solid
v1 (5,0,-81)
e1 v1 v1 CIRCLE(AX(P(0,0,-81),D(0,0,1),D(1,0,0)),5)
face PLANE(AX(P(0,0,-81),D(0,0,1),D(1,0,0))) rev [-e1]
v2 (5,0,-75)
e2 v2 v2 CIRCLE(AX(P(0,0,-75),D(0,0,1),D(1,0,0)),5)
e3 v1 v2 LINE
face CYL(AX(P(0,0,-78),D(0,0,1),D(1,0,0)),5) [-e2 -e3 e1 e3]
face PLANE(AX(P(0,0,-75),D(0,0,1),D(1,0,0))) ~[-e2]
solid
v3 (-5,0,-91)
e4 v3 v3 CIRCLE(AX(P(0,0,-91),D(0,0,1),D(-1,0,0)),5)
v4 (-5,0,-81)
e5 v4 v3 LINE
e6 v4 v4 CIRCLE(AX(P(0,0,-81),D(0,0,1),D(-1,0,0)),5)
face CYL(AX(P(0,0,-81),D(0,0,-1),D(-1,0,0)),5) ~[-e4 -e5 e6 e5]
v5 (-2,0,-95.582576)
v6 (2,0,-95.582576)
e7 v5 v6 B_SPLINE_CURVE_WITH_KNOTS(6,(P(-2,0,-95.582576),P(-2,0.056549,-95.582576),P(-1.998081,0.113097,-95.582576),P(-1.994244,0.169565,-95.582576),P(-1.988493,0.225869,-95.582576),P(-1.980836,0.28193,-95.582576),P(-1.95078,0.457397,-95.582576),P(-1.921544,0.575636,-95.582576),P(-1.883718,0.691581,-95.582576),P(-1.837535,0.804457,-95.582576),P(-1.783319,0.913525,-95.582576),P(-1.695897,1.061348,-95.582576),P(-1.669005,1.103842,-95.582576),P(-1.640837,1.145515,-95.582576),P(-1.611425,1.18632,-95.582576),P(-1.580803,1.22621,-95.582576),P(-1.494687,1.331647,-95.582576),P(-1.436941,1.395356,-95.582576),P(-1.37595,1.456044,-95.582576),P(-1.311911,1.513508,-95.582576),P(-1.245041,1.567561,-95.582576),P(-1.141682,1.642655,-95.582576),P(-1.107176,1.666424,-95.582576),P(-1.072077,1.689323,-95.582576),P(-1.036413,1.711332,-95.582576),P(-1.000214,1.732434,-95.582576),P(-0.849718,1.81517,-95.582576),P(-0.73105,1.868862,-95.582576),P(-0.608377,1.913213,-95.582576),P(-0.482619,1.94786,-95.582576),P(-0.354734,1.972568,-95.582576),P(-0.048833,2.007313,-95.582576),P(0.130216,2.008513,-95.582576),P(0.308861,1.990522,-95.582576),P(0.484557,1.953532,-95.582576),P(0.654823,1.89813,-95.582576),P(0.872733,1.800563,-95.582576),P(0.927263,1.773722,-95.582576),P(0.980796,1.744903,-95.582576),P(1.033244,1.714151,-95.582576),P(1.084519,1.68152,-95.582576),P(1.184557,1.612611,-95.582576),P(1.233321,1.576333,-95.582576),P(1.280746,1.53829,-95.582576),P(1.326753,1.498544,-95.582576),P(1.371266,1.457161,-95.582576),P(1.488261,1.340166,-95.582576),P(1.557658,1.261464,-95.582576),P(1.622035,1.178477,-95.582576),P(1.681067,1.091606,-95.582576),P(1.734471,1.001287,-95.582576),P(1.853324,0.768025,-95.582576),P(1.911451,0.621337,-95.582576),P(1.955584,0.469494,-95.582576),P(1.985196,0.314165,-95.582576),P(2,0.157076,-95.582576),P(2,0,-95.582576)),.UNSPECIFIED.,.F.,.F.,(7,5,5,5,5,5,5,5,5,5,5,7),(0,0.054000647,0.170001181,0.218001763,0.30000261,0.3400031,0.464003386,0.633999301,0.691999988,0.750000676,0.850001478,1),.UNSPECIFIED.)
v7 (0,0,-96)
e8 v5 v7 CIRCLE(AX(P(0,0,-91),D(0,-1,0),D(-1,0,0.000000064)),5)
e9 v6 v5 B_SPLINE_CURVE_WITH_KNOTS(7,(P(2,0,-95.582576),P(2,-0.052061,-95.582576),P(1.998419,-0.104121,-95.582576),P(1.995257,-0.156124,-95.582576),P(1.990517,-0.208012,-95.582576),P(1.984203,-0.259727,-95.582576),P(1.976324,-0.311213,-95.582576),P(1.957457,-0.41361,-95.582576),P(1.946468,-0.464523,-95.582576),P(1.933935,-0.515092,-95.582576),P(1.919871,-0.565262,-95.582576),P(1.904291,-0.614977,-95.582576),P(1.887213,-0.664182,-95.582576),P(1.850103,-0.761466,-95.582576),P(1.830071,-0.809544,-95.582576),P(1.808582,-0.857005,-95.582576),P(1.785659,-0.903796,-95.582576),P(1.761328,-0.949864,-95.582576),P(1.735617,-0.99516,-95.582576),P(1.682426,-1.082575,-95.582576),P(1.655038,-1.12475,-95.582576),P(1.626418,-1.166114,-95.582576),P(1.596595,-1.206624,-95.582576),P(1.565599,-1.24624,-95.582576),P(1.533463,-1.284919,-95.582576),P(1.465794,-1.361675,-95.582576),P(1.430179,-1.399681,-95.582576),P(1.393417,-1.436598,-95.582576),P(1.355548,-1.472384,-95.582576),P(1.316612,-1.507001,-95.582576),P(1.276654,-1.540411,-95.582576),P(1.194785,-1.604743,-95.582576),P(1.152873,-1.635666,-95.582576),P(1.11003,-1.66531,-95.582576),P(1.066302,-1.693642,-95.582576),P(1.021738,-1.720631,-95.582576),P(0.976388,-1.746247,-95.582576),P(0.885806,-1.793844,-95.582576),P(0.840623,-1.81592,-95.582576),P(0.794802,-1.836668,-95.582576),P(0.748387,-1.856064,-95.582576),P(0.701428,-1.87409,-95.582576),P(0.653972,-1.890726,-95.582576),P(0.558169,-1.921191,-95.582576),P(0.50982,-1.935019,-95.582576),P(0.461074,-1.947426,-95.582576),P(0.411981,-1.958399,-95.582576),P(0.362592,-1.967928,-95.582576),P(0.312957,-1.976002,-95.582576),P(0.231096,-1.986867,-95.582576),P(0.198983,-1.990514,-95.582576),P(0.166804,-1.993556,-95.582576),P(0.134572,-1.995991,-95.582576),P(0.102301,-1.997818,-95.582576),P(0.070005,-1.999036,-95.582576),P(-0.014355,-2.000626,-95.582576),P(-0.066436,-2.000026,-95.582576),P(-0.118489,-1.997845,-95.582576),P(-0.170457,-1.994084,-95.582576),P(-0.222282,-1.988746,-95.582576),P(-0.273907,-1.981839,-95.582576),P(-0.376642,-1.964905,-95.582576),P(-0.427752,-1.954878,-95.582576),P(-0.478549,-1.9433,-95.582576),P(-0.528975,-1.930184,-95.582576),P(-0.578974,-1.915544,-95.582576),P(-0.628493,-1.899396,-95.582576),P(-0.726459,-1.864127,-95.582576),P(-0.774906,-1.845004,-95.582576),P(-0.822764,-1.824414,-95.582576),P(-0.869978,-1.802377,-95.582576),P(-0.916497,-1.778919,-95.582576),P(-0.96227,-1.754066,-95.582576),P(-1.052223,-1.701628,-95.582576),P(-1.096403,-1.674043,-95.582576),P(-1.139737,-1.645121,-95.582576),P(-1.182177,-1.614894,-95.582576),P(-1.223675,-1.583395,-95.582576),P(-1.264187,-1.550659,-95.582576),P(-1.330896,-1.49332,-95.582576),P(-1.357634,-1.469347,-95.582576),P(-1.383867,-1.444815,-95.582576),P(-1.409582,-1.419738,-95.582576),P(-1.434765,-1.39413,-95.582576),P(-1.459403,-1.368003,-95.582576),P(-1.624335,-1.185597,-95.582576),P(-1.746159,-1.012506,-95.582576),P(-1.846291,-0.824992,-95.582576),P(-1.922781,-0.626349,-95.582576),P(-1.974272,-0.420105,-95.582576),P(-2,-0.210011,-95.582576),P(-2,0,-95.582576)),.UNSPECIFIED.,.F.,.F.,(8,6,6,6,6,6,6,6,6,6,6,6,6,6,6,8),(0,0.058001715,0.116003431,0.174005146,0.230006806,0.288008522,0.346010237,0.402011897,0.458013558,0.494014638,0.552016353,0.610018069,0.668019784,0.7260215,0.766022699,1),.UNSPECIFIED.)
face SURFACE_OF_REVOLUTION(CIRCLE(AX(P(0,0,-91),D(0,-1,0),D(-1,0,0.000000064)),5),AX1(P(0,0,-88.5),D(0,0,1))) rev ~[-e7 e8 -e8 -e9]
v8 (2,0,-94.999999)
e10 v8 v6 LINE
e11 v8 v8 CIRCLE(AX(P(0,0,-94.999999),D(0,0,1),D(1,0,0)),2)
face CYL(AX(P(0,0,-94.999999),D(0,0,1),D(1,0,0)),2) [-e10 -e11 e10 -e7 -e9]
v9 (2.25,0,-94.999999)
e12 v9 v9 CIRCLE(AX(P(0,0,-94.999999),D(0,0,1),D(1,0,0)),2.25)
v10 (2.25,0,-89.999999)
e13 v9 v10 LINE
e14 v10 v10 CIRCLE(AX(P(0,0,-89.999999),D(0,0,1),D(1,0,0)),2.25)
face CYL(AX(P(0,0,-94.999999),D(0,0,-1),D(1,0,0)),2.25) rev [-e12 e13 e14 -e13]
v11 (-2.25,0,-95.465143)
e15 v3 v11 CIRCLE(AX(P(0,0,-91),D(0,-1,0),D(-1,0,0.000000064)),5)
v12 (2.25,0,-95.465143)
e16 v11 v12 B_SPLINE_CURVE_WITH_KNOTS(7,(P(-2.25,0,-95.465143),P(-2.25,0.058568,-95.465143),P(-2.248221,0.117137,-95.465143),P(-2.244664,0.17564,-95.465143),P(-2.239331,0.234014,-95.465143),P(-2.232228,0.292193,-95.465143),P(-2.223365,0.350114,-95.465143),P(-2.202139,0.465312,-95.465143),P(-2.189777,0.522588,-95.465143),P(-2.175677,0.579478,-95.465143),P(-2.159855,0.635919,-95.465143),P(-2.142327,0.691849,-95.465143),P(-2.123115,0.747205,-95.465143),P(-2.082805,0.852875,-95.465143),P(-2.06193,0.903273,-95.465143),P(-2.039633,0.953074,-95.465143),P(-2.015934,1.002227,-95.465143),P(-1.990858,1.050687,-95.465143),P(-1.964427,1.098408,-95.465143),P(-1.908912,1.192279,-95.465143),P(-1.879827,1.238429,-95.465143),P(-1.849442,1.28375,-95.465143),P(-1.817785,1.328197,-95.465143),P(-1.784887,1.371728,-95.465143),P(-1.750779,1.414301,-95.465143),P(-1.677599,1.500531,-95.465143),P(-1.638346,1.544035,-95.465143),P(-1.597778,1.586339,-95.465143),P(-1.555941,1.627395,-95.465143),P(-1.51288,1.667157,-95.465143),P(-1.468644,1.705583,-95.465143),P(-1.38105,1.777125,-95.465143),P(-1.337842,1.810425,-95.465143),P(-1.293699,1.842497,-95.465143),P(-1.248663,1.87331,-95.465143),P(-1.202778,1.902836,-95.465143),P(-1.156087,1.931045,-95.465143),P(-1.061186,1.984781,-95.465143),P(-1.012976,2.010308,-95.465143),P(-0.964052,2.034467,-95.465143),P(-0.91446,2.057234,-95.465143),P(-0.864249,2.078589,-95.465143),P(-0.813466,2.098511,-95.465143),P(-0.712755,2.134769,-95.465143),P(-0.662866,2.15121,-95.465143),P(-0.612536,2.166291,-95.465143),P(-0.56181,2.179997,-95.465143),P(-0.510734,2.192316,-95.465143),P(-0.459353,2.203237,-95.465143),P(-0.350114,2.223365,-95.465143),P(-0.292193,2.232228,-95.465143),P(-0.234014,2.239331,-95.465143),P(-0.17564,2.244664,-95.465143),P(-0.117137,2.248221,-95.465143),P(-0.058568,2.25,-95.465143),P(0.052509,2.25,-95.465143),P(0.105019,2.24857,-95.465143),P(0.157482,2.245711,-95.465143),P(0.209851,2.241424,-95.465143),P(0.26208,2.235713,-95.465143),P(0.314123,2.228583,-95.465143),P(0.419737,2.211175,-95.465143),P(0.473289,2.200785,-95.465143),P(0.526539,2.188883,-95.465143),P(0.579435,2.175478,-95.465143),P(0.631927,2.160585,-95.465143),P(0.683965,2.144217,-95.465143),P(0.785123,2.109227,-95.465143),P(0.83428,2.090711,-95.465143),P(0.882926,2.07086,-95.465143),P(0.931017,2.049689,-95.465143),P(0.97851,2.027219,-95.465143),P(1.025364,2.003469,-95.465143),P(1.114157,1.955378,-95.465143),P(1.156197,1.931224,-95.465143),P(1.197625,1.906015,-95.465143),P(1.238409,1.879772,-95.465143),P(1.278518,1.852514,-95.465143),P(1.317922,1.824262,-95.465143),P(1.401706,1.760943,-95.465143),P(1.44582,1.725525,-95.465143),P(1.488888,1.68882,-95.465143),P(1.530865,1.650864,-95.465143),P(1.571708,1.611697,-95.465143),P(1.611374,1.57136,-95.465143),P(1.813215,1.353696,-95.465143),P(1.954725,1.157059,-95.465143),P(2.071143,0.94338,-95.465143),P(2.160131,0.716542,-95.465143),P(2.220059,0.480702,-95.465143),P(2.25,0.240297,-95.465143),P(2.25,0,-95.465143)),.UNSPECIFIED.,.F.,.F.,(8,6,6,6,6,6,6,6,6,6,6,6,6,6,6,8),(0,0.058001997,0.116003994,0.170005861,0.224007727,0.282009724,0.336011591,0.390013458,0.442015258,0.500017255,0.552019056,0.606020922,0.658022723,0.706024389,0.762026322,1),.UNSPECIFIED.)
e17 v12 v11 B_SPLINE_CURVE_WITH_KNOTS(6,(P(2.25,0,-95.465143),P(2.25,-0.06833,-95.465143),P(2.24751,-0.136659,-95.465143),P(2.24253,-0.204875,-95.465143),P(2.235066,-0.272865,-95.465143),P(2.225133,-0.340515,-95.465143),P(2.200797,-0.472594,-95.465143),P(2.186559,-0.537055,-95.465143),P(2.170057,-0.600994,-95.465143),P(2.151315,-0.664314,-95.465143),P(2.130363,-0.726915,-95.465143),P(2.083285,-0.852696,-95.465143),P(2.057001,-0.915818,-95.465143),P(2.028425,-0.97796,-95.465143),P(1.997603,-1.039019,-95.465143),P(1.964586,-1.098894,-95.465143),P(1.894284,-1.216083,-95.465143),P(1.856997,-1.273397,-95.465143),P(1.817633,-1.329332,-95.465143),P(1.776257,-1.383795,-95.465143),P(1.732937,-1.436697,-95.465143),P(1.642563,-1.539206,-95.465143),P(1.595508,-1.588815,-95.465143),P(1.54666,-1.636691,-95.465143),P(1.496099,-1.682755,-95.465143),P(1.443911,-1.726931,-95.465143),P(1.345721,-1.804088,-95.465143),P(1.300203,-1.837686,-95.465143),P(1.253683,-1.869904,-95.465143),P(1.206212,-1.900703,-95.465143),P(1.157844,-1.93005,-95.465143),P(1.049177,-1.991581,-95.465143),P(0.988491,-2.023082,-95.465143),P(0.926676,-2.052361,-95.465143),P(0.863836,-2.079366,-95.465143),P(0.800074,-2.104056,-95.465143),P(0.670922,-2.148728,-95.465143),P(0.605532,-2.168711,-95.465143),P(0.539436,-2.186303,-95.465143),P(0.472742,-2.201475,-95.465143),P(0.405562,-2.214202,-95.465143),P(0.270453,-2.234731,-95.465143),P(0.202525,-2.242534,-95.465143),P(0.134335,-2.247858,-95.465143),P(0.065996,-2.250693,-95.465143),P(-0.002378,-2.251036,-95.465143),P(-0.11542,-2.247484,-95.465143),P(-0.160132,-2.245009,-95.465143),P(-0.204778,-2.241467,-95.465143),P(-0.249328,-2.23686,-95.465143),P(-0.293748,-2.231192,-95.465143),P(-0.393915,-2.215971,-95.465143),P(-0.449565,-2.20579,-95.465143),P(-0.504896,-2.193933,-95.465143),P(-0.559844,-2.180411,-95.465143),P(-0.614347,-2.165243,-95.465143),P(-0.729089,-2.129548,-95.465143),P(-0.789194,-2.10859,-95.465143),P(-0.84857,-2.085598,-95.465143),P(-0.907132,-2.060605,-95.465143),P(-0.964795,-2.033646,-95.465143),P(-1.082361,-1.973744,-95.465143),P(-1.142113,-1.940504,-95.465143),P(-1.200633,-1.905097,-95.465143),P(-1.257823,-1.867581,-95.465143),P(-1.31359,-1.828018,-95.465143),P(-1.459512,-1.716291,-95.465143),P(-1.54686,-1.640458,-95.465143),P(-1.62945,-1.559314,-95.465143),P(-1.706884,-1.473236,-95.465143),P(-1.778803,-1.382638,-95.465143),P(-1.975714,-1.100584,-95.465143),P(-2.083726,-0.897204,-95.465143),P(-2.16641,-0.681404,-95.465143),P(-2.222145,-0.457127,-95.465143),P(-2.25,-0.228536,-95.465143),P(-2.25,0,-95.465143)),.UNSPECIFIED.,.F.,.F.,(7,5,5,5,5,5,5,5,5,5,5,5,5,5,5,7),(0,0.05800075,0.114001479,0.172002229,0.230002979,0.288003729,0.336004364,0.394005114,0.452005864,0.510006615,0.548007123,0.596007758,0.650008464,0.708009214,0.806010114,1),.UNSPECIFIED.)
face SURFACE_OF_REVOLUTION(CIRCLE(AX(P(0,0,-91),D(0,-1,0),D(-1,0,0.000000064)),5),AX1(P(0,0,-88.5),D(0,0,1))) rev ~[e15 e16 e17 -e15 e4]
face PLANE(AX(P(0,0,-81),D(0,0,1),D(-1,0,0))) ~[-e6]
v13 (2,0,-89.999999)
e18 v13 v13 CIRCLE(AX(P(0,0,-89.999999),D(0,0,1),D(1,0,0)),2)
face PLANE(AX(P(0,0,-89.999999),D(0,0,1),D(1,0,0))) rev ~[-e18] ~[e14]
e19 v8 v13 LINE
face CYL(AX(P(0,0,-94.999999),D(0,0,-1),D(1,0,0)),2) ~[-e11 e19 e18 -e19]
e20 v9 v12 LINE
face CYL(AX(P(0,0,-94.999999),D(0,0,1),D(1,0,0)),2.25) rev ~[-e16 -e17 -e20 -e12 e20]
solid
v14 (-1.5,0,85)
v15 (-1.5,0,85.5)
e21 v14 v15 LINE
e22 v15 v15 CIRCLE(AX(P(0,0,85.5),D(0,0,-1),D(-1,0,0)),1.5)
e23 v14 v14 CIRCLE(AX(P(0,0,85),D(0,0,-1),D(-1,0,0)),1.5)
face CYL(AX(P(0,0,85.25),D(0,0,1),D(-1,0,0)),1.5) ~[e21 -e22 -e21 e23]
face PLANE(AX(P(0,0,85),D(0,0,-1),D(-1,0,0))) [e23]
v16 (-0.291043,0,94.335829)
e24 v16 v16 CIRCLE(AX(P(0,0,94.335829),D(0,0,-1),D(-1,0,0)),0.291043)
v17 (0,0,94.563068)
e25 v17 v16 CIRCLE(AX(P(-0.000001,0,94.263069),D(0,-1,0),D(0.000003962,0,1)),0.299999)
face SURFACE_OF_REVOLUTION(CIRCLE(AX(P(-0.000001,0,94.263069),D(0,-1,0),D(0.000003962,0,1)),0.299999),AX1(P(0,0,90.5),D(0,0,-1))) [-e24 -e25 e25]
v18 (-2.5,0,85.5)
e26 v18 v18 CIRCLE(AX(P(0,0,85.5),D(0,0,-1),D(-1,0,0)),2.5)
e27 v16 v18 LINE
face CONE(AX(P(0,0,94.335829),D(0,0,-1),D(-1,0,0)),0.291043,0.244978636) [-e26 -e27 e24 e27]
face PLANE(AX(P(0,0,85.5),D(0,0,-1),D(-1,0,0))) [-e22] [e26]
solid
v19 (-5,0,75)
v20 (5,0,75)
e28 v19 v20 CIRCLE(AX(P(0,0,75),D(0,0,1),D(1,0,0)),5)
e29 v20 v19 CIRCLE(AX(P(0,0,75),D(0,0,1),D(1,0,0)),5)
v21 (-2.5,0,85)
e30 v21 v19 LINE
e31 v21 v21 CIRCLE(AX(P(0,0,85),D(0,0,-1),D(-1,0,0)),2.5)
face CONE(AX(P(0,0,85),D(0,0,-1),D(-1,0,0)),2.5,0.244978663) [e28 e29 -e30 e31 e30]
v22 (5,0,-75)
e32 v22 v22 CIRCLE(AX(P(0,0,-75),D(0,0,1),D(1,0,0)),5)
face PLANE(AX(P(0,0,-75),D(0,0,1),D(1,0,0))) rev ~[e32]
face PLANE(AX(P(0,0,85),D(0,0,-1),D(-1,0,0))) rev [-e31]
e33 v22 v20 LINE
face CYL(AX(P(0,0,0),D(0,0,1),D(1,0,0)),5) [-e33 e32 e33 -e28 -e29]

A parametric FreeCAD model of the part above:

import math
import FreeCAD as App
import Part
import Sketcher
from FreeCAD import Vector
Q = App.Units.Quantity

doc = App.newDocument("Part")
body = doc.addObject("PartDesign::Body", "Body")

# Sketch on XY plane
sketch1 = body.newObject("Sketcher::SketchObject", "Sketch")
sketch1.AttachmentSupport = (doc.getObject("XY_Plane"), [""])
sketch1.MapMode = "FlatFace"
sketch1.addGeometry(Part.Circle(Vector(0, 0, 0), Vector(0, 0, 1), 5), False)
sketch1.addConstraint([
    Sketcher.Constraint("Coincident", 0, 3, -1, 1),
    Sketcher.Constraint("Diameter", 0, Q("10 mm")),
])
pad1 = body.newObject("PartDesign::Pad", "Pad")
pad1.Profile = sketch1
pad1.Length = 150
pad1.Midplane = True

# Sketch on XZ plane
sketch2 = body.newObject("Sketcher::SketchObject", "Sketch001")
sketch2.AttachmentSupport = (doc.getObject("XZ_Plane"), [""])
sketch2.MapMode = "FlatFace"
sketch2.addGeometry([
    Part.LineSegment(Vector(-2.5, 85, 0), Vector(-5, 75, 0)),
    Part.LineSegment(Vector(-5, 75, 0), Vector(0, 75, 0)),
    Part.LineSegment(Vector(0, 75, 0), Vector(0, 85, 0)),
    Part.LineSegment(Vector(0, 85, 0), Vector(-2.5, 85, 0)),
], False)
sketch2.addConstraint([
    Sketcher.Constraint("Coincident", 0, 2, 1, 1),
    Sketcher.Constraint("Coincident", 1, 2, 2, 1),
    Sketcher.Constraint("Coincident", 2, 2, 3, 1),
    Sketcher.Constraint("Coincident", 3, 2, 0, 1),
    Sketcher.Constraint("Horizontal", 1),
    Sketcher.Constraint("Vertical", 2),
    Sketcher.Constraint("Horizontal", 3),
    Sketcher.Constraint("PointOnObject", 1, 2, -2),
    Sketcher.Constraint("DistanceX", 1, 1, 1, 2, Q("5 mm")),
    Sketcher.Constraint("DistanceY", 2, 1, 2, 2, Q("10 mm")),
    Sketcher.Constraint("DistanceX", 3, 2, 3, 1, Q("2.5 mm")),
    Sketcher.Constraint("DistanceY", -1, 1, 0, 2, Q("75 mm")),
])
revolution = body.newObject("PartDesign::Revolution", "Revolution")
revolution.Profile = sketch2
revolution.ReferenceAxis = (sketch2, ["V_Axis"])
revolution.Angle = 360
body2 = doc.addObject("PartDesign::Body", "Body001")

# Sketch on XZ plane
sketch3 = body2.newObject("Sketcher::SketchObject", "Sketch002")
sketch3.AttachmentSupport = (doc.getObject("XZ_Plane001"), [""])
sketch3.MapMode = "FlatFace"
sketch3.addGeometry([
    Part.LineSegment(Vector(-1.5, 85.5, 0), Vector(-1.5, 85, 0)),  # 0
    Part.LineSegment(Vector(-1.5, 85, 0), Vector(0, 85, 0)),  # 1
    Part.LineSegment(Vector(0, 85, 0), Vector(0, 94.56, 0)),  # 2
    Part.ArcOfCircle(Part.Circle(Vector(0, 94.26, 0), Vector(0, 0, 1), 0.3), math.radians(90), math.radians(166)),  # 3
    Part.LineSegment(Vector(-0.29, 94.34, 0), Vector(-2.5, 85.5, 0)),  # 4
    Part.LineSegment(Vector(-2.5, 85.5, 0), Vector(-1.5, 85.5, 0)),  # 5
], False)
sketch3.addConstraint([
    Sketcher.Constraint("Coincident", 0, 2, 1, 1),
    Sketcher.Constraint("Coincident", 1, 2, 2, 1),
    Sketcher.Constraint("Coincident", 2, 2, 3, 1),
    Sketcher.Constraint("Tangent", 3, 2, 4, 1),
    Sketcher.Constraint("Coincident", 4, 2, 5, 1),
    Sketcher.Constraint("Coincident", 5, 2, 0, 1),
    Sketcher.Constraint("Vertical", 0),
    Sketcher.Constraint("Horizontal", 1),
    Sketcher.Constraint("Vertical", 2),
    Sketcher.Constraint("Horizontal", 5),
    Sketcher.Constraint("PointOnObject", 3, 3, -2),
    Sketcher.Constraint("PointOnObject", 1, 2, -2),
    Sketcher.Constraint("Radius", 3, Q("0.299999 mm")),
    Sketcher.Constraint("DistanceX", 5, 1, 5, 2, Q("1 mm")),
    Sketcher.Constraint("DistanceX", 1, 1, 1, 2, Q("1.5 mm")),
    Sketcher.Constraint("DistanceY", 0, 2, 0, 1, Q("0.5 mm")),
    Sketcher.Constraint("DistanceY", -1, 1, 0, 2, Q("85 mm")),
    Sketcher.Constraint("DistanceY", 2, 1, 2, 2, Q("9.563068 mm")),
])
revolution2 = body2.newObject("PartDesign::Revolution", "Revolution001")
revolution2.Profile = sketch3
revolution2.ReferenceAxis = (sketch3, ["V_Axis"])
revolution2.Angle = 360
body3 = doc.addObject("PartDesign::Body", "Body002")

# Sketch on XZ plane
sketch4 = body3.newObject("Sketcher::SketchObject", "Sketch003")
sketch4.AttachmentSupport = (doc.getObject("XZ_Plane002"), [""])
sketch4.MapMode = "FlatFace"
sketch4.addGeometry([
    Part.LineSegment(Vector(0, -75, 0), Vector(0, -81, 0)),
    Part.LineSegment(Vector(0, -81, 0), Vector(5, -81, 0)),
    Part.LineSegment(Vector(5, -81, 0), Vector(5, -75, 0)),
    Part.LineSegment(Vector(5, -75, 0), Vector(0, -75, 0)),
], False)
sketch4.addConstraint([
    Sketcher.Constraint("Coincident", 0, 2, 1, 1),
    Sketcher.Constraint("Coincident", 1, 2, 2, 1),
    Sketcher.Constraint("Coincident", 2, 2, 3, 1),
    Sketcher.Constraint("Coincident", 3, 2, 0, 1),
    Sketcher.Constraint("Vertical", 0),
    Sketcher.Constraint("Horizontal", 1),
    Sketcher.Constraint("Vertical", 2),
    Sketcher.Constraint("Horizontal", 3),
    Sketcher.Constraint("PointOnObject", 0, 2, -2),
    Sketcher.Constraint("DistanceX", 1, 1, 1, 2, Q("5 mm")),
    Sketcher.Constraint("DistanceY", 0, 2, 0, 1, Q("6 mm")),
    Sketcher.Constraint("DistanceY", 0, 2, -1, 1, Q("81 mm")),
])
revolution3 = body3.newObject("PartDesign::Revolution", "Revolution002")
revolution3.Profile = sketch4
revolution3.ReferenceAxis = (sketch4, ["V_Axis"])
revolution3.Angle = 360
body4 = doc.addObject("PartDesign::Body", "Body003")

# Sketch on XZ plane
sketch5 = body4.newObject("Sketcher::SketchObject", "Sketch004")
sketch5.AttachmentSupport = (doc.getObject("XZ_Plane003"), [""])
sketch5.MapMode = "FlatFace"
sketch5.addGeometry([
    Part.ArcOfCircle(Part.Circle(Vector(0, -91, 0), Vector(0, 0, 1), 5), math.radians(180), math.radians(270)),
    Part.LineSegment(Vector(0, -96, 0), Vector(0, -81, 0)),
    Part.LineSegment(Vector(0, -81, 0), Vector(-5, -81, 0)),
    Part.LineSegment(Vector(-5, -81, 0), Vector(-5, -91, 0)),
], False)
sketch5.addConstraint([
    Sketcher.Constraint("Coincident", 0, 2, 1, 1),
    Sketcher.Constraint("Coincident", 1, 2, 2, 1),
    Sketcher.Constraint("Coincident", 2, 2, 3, 1),
    Sketcher.Constraint("Tangent", 3, 2, 0, 1),
    Sketcher.Constraint("Vertical", 1),
    Sketcher.Constraint("Horizontal", 2),
    Sketcher.Constraint("Vertical", 3),
    Sketcher.Constraint("PointOnObject", 0, 3, -2),
    Sketcher.Constraint("PointOnObject", 0, 2, -2),
    Sketcher.Constraint("Radius", 0, Q("5 mm")),
    Sketcher.Constraint("DistanceY", 1, 1, 1, 2, Q("15 mm")),
    Sketcher.Constraint("DistanceY", 0, 3, -1, 1, Q("91 mm")),
])
revolution4 = body4.newObject("PartDesign::Revolution", "Revolution003")
revolution4.Profile = sketch5
revolution4.ReferenceAxis = (sketch5, ["V_Axis"])
revolution4.Angle = 360

# Sketch on XY plane
sketch6 = body4.newObject("Sketcher::SketchObject", "Sketch005")
sketch6.AttachmentSupport = (doc.getObject("XY_Plane003"), [""])
sketch6.MapMode = "FlatFace"
sketch6.AttachmentOffset = App.Placement(Vector(0, 0, -94.999999), App.Rotation())
sketch6.addGeometry([
    Part.Circle(Vector(0, 0, 0), Vector(0, 0, 1), 2.2),
    Part.Circle(Vector(0, 0, 0), Vector(0, 0, 1), 2),
], False)
sketch6.addConstraint([
    Sketcher.Constraint("Coincident", 0, 3, -1, 1),
    Sketcher.Constraint("Coincident", 1, 3, -1, 1),
    Sketcher.Constraint("Diameter", 1, Q("4 mm")),
    Sketcher.Constraint("Diameter", 0, Q("4.5 mm")),
])
pocket1 = body4.newObject("PartDesign::Pocket", "Pocket")
pocket1.Profile = sketch6
pocket1.Type = "TwoLengths"
pocket1.Length = 5
pocket1.Length2 = 25
pocket1.Reversed = True

doc.recompute()
